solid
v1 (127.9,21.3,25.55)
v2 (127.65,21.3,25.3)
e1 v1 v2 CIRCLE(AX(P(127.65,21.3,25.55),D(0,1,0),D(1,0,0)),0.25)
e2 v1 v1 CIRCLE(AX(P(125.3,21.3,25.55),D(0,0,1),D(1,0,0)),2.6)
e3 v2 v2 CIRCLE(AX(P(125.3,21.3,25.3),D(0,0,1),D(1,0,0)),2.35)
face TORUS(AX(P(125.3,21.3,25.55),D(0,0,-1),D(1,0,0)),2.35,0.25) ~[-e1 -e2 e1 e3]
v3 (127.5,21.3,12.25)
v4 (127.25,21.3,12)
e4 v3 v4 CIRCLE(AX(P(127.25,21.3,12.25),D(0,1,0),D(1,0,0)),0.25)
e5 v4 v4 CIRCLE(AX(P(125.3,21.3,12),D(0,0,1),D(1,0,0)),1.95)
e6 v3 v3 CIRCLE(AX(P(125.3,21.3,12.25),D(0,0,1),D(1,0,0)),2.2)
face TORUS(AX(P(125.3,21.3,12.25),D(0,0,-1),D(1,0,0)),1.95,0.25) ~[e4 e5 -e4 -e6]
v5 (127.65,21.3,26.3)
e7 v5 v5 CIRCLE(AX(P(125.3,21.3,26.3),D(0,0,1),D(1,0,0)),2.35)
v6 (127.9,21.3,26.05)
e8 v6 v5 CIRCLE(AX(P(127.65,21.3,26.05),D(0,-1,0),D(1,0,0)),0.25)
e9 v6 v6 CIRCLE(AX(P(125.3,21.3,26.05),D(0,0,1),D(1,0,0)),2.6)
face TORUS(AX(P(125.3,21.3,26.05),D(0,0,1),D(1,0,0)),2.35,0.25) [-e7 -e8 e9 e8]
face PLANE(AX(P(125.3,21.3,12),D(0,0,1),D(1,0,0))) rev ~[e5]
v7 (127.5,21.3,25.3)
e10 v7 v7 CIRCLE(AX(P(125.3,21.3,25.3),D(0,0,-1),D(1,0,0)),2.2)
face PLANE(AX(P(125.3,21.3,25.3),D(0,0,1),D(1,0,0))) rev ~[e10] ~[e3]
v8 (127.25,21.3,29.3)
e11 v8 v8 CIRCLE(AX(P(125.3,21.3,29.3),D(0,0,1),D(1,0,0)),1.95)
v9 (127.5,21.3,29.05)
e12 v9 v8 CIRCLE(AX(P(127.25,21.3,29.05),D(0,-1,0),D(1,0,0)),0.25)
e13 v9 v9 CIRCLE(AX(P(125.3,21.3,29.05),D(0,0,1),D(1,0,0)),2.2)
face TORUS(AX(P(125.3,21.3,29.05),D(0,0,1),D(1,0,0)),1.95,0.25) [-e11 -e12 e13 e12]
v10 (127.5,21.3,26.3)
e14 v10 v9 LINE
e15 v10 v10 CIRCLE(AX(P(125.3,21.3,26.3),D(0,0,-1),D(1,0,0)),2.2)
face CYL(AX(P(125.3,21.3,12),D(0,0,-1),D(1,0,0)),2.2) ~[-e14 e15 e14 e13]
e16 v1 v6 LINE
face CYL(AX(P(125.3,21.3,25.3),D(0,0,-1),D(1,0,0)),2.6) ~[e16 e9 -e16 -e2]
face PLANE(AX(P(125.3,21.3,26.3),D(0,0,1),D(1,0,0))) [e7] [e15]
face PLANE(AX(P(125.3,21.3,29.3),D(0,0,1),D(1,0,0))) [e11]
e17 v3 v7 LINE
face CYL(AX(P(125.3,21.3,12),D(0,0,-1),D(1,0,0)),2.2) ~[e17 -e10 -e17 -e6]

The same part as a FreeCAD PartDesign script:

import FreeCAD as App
import Part
import Sketcher
from FreeCAD import Vector


def edges_at(feature, points):
    """Names of the edges that pass closest to the given points."""
    edges = feature.Shape.Edges
    near = lambda p: min(range(len(edges)), key=lambda i: edges[i].distToShape(Part.Vertex(*p))[0])
    return sorted({f"Edge{near(p) + 1}" for p in points})

doc = App.newDocument("Part")
body = doc.addObject("PartDesign::Body", "Body")

# Sketch on XY plane
sketch1 = doc.addObject("Sketcher::SketchObject", "Sketch")
body.addObject(sketch1)
sketch1.AttachmentSupport = (doc.XY_Plane, [""])
sketch1.MapMode = "FlatFace"
sketch1.addGeometry(Part.Circle(Vector(125.3, 21.3, 0), Vector(0, 0, 1), 2.2), False)
sketch1.addConstraint([
    Sketcher.Constraint("Diameter", 0, 4.4),
    Sketcher.Constraint("DistanceX", -1, 1, 0, 3, 125.3),
    Sketcher.Constraint("DistanceY", -1, 1, 0, 3, 21.3),
])
pad1 = doc.addObject("PartDesign::Pad", "Pad")
body.addObject(pad1)
pad1.Profile = sketch1
pad1.Length = 17.3

# Sketch on XY plane
sketch2 = doc.addObject("Sketcher::SketchObject", "Sketch001")
body.addObject(sketch2)
sketch2.AttachmentSupport = (doc.XY_Plane, [""])
sketch2.MapMode = "FlatFace"
sketch2.AttachmentOffset = App.Placement(Vector(0, 0, 13.3), App.Rotation())
sketch2.addGeometry(Part.Circle(Vector(125.3, 21.3, 0), Vector(0, 0, 1), 2.6), False)
sketch2.addConstraint([
    Sketcher.Constraint("Diameter", 0, 5.2),
    Sketcher.Constraint("DistanceX", -1, 1, 0, 3, 125.3),
    Sketcher.Constraint("DistanceY", -1, 1, 0, 3, 21.3),
])
pad2 = doc.addObject("PartDesign::Pad", "Pad001")
body.addObject(pad2)
pad2.Profile = sketch2
pad2.Length = 1
doc.recompute()

fillet = doc.addObject("PartDesign::Fillet", "Fillet")
body.addObject(fillet)
fillet.Base = (pad2, edges_at(pad2, [
    (122.7, 21.3, 14.3),
    (122.7, 21.3, 13.3),
    (123.1, 21.3, 17.3),
    (123.1, 21.3, 0),
]))
fillet.Radius = 0.25
body2 = doc.addObject("PartDesign::Body", "Body001")
doc.recompute()

body.Placement = App.Placement(Vector(0, 0, 12), App.Rotation(Vector(0, 0, 1), 0))
boolean = doc.addObject("PartDesign::Boolean", "Boolean")
body2.addObject(boolean)
boolean.Type = "Fuse"
boolean.addObjects([body])

doc.recompute()
